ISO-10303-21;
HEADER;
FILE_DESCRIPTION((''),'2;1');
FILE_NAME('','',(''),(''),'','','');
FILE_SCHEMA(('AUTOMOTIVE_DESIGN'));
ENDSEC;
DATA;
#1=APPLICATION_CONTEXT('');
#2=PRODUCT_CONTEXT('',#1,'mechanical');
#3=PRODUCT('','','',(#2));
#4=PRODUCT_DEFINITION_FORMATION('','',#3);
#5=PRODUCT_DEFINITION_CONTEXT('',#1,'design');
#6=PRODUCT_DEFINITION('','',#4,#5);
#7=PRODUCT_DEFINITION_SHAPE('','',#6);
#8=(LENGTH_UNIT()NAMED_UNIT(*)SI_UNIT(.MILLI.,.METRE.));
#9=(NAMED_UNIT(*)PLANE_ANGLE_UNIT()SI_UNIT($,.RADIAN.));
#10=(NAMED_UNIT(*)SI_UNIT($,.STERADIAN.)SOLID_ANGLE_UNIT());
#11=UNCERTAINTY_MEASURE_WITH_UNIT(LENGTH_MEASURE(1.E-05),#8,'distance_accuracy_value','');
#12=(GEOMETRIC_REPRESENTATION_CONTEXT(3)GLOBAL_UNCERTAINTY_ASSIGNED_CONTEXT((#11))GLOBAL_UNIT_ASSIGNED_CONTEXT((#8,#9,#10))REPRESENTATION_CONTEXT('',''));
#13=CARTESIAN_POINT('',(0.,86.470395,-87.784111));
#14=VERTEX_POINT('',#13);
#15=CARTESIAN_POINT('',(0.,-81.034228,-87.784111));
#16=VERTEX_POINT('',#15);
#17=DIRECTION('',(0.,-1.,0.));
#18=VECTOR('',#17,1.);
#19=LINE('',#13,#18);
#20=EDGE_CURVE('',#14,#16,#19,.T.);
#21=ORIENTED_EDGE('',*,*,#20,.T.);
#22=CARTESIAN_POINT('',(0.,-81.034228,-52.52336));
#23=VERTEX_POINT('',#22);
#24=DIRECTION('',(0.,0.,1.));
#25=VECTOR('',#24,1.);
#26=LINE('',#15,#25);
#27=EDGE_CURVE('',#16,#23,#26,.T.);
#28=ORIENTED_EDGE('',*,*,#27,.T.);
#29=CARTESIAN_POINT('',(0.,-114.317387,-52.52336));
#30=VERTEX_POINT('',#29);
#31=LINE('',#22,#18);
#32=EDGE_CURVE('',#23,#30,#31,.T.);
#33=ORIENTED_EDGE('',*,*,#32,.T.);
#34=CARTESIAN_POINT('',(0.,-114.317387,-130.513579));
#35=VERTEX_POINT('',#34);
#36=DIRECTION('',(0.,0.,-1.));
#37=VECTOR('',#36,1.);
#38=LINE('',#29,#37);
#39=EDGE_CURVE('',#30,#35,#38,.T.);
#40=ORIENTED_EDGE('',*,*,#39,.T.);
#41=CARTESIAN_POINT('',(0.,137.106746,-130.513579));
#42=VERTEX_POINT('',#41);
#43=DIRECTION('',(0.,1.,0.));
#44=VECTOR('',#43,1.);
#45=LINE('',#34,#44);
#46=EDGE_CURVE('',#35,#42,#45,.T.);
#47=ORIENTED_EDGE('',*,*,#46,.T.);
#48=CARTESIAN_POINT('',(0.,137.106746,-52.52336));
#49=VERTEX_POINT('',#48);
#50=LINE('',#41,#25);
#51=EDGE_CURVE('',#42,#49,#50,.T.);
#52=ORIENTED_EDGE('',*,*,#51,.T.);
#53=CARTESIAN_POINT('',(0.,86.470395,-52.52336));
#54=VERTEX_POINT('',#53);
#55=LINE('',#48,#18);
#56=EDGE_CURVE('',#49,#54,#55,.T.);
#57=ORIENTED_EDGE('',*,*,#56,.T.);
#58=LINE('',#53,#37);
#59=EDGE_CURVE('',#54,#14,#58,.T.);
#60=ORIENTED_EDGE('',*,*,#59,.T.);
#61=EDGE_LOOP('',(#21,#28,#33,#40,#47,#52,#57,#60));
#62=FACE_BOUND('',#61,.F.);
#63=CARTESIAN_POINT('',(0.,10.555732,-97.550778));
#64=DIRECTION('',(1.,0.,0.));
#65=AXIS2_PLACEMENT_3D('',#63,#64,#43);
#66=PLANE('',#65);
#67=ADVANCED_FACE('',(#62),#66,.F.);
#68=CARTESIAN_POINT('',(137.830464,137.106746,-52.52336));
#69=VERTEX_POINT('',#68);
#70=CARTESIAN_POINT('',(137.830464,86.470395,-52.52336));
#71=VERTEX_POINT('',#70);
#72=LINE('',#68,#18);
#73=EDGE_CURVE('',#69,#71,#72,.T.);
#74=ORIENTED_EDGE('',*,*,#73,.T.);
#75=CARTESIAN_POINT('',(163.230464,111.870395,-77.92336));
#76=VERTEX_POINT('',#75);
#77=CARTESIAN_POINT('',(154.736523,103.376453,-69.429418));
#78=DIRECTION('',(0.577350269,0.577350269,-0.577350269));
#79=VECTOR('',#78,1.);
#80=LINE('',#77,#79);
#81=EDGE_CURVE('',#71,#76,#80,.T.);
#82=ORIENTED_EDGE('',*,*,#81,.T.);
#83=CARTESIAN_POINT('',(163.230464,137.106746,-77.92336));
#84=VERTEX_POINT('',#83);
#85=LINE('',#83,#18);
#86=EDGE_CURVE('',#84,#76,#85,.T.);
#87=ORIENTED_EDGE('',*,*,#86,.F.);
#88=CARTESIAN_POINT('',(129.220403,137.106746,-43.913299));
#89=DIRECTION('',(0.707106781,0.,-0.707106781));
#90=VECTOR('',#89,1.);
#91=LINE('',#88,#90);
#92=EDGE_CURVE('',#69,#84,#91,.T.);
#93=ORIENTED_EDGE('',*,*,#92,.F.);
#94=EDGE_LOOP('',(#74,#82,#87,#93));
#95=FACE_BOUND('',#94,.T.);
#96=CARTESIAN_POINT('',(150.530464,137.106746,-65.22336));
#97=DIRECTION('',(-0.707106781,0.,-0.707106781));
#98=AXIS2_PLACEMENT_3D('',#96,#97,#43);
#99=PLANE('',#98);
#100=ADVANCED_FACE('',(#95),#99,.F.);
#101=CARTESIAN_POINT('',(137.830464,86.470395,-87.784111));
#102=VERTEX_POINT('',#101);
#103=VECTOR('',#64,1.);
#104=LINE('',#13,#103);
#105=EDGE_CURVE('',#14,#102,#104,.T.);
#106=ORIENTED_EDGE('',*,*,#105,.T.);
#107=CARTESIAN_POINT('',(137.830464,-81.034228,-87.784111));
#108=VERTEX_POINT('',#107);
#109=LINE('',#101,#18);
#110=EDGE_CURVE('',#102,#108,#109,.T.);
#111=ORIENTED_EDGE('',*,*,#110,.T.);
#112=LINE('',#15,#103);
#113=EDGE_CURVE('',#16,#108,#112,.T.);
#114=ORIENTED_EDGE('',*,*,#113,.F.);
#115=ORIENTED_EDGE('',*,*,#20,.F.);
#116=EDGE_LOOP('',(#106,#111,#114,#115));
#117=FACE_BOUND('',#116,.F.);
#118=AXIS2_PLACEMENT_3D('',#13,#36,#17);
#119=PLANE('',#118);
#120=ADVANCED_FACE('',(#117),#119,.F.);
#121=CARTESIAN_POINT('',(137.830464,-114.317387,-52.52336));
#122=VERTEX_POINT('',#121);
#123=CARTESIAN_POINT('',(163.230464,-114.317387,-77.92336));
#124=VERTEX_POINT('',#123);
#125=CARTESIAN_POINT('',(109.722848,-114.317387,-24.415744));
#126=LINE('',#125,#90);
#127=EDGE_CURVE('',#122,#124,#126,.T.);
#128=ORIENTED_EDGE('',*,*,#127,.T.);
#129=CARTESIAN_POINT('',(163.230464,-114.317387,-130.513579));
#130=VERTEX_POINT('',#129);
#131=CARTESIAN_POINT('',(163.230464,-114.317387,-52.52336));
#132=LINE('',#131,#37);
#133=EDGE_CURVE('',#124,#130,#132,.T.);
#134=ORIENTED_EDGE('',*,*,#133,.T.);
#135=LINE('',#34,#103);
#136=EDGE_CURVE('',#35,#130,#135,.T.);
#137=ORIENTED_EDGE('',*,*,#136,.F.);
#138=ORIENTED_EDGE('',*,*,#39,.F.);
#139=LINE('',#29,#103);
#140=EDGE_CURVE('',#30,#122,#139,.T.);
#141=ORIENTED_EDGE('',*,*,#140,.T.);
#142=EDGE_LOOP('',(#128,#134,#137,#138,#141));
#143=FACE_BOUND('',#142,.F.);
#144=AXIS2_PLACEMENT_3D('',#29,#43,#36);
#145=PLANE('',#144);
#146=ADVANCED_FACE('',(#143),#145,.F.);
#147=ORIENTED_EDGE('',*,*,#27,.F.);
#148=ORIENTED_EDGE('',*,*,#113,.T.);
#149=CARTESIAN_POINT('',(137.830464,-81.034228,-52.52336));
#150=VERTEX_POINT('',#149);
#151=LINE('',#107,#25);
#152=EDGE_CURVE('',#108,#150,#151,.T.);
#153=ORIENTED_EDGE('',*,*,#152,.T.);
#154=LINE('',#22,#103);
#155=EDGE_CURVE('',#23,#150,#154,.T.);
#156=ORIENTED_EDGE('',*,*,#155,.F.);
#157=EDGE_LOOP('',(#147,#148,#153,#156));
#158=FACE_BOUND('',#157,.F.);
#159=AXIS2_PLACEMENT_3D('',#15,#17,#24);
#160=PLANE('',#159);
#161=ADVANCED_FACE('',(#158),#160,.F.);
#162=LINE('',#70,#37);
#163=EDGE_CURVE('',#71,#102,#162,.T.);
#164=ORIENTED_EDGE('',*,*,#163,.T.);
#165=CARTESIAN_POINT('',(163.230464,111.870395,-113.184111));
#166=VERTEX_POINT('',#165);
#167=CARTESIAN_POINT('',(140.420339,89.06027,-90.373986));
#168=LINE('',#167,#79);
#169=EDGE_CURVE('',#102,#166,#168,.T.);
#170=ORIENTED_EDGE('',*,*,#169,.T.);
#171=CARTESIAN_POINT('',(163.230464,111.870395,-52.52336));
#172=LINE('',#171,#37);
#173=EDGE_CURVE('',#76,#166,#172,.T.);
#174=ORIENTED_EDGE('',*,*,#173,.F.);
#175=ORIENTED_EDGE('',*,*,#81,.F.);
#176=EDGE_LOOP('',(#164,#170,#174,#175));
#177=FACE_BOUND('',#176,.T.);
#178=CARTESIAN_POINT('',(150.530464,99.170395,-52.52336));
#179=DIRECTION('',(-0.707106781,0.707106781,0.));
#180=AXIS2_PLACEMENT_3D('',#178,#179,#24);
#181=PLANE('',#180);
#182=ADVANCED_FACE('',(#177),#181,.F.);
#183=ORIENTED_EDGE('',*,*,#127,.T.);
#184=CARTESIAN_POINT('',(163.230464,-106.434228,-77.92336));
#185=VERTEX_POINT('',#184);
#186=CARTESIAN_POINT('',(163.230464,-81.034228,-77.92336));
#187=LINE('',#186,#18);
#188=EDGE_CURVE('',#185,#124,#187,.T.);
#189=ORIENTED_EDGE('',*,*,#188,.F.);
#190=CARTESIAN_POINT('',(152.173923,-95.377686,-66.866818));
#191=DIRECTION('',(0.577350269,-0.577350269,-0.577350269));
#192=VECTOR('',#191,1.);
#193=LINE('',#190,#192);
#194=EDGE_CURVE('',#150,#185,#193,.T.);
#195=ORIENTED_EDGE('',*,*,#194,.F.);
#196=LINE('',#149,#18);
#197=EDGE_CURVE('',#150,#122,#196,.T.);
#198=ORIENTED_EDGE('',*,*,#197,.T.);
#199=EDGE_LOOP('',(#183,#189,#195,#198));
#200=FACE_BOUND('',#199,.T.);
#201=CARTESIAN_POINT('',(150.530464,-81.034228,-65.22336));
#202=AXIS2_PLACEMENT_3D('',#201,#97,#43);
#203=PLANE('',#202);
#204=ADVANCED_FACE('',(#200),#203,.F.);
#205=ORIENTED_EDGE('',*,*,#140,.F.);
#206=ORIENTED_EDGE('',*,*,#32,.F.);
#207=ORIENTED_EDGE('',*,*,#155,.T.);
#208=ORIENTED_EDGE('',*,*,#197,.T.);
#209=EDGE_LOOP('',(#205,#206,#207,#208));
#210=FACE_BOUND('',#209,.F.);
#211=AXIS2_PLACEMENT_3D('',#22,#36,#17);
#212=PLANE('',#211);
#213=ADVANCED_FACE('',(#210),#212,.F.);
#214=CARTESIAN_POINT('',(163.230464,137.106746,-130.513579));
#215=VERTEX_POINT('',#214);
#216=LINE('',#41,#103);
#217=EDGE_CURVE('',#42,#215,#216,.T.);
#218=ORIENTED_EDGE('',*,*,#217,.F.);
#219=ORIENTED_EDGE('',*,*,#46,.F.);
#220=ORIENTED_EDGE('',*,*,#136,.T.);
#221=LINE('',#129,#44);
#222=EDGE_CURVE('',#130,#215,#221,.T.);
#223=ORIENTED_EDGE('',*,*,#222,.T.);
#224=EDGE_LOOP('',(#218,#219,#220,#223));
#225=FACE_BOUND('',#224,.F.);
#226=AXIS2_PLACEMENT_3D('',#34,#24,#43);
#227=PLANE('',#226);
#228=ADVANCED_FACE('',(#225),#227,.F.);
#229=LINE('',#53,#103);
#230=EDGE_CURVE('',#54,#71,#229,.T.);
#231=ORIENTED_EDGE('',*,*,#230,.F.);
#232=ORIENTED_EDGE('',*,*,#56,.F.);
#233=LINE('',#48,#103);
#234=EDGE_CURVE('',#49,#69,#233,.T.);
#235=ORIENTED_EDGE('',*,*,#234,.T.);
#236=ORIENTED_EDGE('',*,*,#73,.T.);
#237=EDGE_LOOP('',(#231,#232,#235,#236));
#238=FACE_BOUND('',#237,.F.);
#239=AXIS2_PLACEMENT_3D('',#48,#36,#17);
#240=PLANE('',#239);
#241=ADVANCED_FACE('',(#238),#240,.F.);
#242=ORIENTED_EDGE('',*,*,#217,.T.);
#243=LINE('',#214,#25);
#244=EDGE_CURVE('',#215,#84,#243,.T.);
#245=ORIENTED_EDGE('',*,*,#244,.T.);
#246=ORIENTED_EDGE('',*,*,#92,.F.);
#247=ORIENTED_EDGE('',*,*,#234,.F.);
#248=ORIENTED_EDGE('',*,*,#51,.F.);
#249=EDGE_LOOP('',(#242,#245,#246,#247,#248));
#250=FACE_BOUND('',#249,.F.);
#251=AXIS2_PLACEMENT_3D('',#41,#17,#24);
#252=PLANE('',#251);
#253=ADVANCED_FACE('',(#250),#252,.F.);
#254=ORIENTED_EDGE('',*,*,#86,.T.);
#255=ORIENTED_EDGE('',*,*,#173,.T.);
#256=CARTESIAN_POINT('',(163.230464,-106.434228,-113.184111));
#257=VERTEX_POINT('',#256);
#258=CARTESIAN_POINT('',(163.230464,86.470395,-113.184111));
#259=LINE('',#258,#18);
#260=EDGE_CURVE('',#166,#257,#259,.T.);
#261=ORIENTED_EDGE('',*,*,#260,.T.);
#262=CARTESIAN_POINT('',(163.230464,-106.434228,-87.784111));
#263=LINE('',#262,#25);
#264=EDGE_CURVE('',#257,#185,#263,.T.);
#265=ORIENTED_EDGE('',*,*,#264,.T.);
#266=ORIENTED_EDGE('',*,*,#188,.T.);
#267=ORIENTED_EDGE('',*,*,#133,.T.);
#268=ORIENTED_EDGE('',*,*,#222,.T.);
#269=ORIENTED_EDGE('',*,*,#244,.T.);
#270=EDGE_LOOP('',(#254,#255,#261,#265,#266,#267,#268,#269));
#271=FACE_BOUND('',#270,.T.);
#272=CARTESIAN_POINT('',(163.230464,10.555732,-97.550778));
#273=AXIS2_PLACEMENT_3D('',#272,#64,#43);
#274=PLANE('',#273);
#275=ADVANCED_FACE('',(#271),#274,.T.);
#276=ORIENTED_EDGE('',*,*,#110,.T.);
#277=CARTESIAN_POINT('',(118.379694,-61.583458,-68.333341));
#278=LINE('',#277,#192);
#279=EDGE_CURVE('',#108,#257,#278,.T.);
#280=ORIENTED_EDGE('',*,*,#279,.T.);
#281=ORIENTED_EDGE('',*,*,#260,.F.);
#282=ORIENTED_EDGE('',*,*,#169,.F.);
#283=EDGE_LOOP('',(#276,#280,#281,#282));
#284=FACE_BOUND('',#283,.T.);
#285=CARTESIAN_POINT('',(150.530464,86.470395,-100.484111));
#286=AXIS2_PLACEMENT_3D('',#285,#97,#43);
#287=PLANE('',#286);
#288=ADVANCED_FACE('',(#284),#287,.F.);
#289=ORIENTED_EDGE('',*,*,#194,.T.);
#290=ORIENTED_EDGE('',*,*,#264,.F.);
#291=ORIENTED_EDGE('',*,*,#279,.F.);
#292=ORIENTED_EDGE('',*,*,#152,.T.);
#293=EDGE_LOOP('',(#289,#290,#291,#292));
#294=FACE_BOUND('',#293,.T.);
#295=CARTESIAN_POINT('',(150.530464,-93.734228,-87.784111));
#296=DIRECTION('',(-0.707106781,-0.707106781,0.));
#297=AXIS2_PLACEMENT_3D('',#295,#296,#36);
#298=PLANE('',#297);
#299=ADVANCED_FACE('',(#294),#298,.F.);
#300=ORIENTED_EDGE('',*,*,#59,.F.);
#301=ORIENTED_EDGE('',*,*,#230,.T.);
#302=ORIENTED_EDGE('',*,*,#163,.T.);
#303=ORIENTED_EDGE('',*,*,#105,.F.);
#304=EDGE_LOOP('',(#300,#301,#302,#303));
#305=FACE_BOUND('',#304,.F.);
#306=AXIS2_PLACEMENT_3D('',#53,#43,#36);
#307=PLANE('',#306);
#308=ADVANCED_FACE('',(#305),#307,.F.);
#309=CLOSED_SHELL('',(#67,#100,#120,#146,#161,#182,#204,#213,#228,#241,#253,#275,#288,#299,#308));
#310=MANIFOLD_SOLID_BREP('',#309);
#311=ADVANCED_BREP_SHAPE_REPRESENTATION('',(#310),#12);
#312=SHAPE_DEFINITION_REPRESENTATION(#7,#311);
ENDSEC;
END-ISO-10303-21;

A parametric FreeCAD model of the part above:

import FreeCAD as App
import Part
import Sketcher
Q = App.Units.Quantity


def edges_at(feature, points):
    """Names of the edges that pass closest to the given points."""
    edges = feature.Shape.Edges
    near = lambda p: min(range(len(edges)), key=lambda i: edges[i].distToShape(Part.Vertex(*p))[0])
    return sorted({f"Edge{near(p) + 1}" for p in points})


def add_polygon(sketch, points):
    """Adds a closed chain of lines whose ends are joined by coincident constraints."""
    first, n = sketch.GeometryCount, len(points)
    for a, b in zip(points, points[1:] + points[:1]):
        sketch.addGeometry(Part.LineSegment(App.Vector(*a, 0), App.Vector(*b, 0)), False)
    for i in range(n):
        sketch.addConstraint(Sketcher.Constraint("Coincident", first + i, 2, first + (i + 1) % n, 1))

doc = App.newDocument("Part")
params = doc.addObject("Spreadsheet::Sheet", "Params")
for row, (alias, value) in enumerate([
    ("pad1_length", "163.230464 mm"),
    ("chamfer_size", "1 in"),
], start=1):
    params.set(f"A{row}", alias)
    params.set(f"B{row}", "=" + value)
    params.setAlias(f"B{row}", alias)

body = doc.addObject("PartDesign::Body", "Body")

sketch1 = body.newObject("Sketcher::SketchObject", "Sketch")
sketch1.AttachmentSupport = (doc.getObject("YZ_Plane"), [""])
sketch1.MapMode = "FlatFace"
add_polygon(sketch1, [(-81, -88), (-81, -53), (-114, -53), (-114, -131), (137, -131), (137, -53), (86, -53), (86, -88)])
sketch1.addConstraint(Sketcher.Constraint("Vertical", 0))
sketch1.addConstraint(Sketcher.Constraint("Horizontal", 1))
sketch1.addConstraint(Sketcher.Constraint("Vertical", 2))
sketch1.addConstraint(Sketcher.Constraint("Horizontal", 3))
sketch1.addConstraint(Sketcher.Constraint("Vertical", 4))
sketch1.addConstraint(Sketcher.Constraint("Horizontal", 5))
sketch1.addConstraint(Sketcher.Constraint("Vertical", 6))
sketch1.addConstraint(Sketcher.Constraint("Horizontal", 7))
sketch1.addConstraint(Sketcher.Constraint("Horizontal", 1, 2, 4, 2))
sketch1.addConstraint(Sketcher.Constraint("DistanceX", 1, 2, 1, 1, Q("33.283159 mm")))
sketch1.addConstraint(Sketcher.Constraint("DistanceX", 5, 2, 5, 1, Q("50.636351 mm")))
sketch1.addConstraint(Sketcher.Constraint("DistanceY", 0, 1, 0, 2, Q("35.260751 mm")))
sketch1.addConstraint(Sketcher.Constraint("DistanceY", 2, 2, 2, 1, Q("77.990219 mm")))
sketch1.addConstraint(Sketcher.Constraint("DistanceX", 3, 1, 3, 2, Q("251.424133 mm")))
sketch1.addConstraint(Sketcher.Constraint("DistanceX", 0, 2, -1, 1, Q("81.034228 mm")))
sketch1.addConstraint(Sketcher.Constraint("DistanceY", 0, 2, -1, 1, Q("52.52336 mm")))
pad1 = body.newObject("PartDesign::Pad", "Pad")
pad1.Profile = sketch1
pad1.setExpression("Length", "Params.pad1_length")
doc.recompute()

chamfer = body.newObject("PartDesign::Chamfer", "Chamfer")
chamfer.Base = (pad1, edges_at(pad1, [
    (163.23, 2.718, -87.784),
    (163.23, -81.034, -70.154),
    (163.23, 86.47, -70.154),
    (163.23, 111.789, -52.523),
    (163.23, -97.676, -52.523),
]))
chamfer.setExpression("Size", "Params.chamfer_size")

doc.recompute()
